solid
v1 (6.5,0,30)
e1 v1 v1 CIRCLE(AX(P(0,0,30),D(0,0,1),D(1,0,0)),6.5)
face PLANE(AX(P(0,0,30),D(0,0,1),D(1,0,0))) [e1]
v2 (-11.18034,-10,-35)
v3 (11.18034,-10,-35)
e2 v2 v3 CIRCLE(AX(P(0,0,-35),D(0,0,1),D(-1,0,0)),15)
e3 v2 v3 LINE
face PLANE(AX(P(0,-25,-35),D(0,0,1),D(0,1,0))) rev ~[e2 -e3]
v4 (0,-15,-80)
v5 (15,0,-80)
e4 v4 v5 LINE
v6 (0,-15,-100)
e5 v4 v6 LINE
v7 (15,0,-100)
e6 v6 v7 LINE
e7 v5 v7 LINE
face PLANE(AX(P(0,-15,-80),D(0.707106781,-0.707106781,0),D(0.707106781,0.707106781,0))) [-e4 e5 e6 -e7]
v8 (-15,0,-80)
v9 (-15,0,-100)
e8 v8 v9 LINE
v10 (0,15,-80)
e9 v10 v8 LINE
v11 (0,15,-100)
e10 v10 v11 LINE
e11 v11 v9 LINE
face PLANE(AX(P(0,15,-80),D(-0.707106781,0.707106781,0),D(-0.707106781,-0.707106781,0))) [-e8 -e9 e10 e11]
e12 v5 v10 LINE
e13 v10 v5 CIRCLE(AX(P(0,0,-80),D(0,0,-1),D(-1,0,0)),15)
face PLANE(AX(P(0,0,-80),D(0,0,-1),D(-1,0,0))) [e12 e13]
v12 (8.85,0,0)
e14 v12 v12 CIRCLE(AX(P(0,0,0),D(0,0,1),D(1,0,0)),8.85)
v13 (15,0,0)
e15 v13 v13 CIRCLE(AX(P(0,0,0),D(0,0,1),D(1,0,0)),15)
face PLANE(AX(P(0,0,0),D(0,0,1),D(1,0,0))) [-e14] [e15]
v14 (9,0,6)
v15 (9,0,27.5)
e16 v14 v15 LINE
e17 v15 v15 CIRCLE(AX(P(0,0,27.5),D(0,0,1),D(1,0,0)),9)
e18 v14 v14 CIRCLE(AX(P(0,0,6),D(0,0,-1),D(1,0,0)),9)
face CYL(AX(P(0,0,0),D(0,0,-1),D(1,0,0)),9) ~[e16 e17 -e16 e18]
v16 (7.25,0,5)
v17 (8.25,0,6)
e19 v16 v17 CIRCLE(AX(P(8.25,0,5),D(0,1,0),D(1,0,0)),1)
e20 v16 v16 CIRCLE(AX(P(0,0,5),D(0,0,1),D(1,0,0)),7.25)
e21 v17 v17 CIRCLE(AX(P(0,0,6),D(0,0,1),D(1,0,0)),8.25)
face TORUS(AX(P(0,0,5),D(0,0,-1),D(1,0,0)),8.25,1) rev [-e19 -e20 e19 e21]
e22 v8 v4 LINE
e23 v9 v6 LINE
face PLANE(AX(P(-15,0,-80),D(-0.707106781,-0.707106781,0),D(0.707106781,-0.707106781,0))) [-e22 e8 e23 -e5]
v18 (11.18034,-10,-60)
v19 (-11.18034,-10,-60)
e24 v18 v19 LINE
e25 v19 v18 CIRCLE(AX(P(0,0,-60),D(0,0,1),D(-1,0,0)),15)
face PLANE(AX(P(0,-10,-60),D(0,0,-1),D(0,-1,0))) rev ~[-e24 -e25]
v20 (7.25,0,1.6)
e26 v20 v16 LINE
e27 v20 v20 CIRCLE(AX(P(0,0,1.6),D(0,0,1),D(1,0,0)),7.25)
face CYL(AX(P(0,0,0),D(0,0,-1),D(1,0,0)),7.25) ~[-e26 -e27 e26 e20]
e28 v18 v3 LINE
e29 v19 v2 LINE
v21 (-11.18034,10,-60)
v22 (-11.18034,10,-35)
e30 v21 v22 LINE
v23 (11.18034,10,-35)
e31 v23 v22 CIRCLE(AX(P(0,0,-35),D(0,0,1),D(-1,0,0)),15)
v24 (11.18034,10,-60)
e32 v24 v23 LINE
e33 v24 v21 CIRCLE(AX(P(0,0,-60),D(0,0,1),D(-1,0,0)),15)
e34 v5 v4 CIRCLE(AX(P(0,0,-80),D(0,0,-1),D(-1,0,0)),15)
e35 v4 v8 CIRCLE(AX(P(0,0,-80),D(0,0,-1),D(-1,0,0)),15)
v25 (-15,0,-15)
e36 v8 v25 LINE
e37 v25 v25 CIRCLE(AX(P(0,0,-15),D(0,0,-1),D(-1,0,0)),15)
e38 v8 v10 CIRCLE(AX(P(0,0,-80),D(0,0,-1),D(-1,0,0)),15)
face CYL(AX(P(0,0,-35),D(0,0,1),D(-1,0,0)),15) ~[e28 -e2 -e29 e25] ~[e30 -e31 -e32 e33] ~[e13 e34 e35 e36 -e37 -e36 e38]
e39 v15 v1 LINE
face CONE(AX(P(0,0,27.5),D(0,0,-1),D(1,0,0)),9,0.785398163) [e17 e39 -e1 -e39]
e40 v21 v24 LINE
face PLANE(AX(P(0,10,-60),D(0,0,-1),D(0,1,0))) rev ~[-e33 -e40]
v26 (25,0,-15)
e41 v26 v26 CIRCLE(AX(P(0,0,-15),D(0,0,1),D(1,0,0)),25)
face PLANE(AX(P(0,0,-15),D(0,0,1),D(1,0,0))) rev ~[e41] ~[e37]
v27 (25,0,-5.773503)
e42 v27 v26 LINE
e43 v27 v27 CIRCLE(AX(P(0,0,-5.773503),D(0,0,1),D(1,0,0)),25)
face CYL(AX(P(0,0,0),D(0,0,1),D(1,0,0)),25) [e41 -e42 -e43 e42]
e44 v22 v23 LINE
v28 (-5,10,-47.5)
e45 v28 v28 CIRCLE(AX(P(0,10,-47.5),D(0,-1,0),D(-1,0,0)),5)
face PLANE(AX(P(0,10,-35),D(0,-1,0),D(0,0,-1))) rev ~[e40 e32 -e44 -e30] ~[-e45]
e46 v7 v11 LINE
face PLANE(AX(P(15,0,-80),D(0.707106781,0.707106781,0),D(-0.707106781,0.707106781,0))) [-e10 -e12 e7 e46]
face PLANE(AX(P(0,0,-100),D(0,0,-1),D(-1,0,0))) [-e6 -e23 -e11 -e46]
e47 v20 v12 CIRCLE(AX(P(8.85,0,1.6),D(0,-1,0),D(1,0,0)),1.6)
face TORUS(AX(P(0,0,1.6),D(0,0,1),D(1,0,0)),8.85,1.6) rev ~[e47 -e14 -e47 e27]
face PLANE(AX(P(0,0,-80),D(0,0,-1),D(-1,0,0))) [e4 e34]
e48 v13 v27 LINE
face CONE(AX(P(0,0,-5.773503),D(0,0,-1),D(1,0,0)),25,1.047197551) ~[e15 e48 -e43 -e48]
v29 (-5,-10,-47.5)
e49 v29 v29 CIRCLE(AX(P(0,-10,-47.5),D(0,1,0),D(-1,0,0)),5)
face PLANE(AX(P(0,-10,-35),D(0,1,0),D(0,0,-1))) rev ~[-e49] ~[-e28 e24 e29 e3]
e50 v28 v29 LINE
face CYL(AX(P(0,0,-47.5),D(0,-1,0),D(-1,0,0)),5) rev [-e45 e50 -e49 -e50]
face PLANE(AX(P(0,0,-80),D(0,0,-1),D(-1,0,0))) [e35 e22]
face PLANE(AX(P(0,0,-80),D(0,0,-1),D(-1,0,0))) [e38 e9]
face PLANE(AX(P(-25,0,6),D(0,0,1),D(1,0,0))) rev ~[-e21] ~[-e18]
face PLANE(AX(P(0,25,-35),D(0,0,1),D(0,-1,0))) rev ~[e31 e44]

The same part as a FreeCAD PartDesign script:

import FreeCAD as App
import Part
import Sketcher

V = App.Vector


def edges_at(feature, points):
    """Names of the edges that pass closest to the given points."""
    edges = feature.Shape.Edges
    near = lambda p: min(range(len(edges)), key=lambda i: edges[i].distToShape(Part.Vertex(*p))[0])
    return sorted({f"Edge{near(p) + 1}" for p in points})

doc = App.newDocument("Part")
body = doc.addObject("PartDesign::Body", "Body")
body.AllowCompound = True

sketch1 = body.newObject("Sketcher::SketchObject", "Sketch")
sketch1.AttachmentSupport = (doc.getObject("XY_Plane"), [""])
sketch1.MapMode = "FlatFace"
sketch1.addGeometry(Part.Circle(V(0, 0, 0), V(0, 0, 1), 9), False)
sketch1.addConstraint([
    Sketcher.Constraint("Coincident", 0, 3, -1, 1),
    Sketcher.Constraint("Diameter", 0, 18.0),
])
pad1 = body.newObject("PartDesign::Pad", "Pad")
pad1.Profile = sketch1
pad1.Length = 30

sketch2 = body.newObject("Sketcher::SketchObject", "Sketch001")
sketch2.AttachmentSupport = (doc.getObject("XY_Plane"), [""])
sketch2.MapMode = "FlatFace"
sketch2.addGeometry(Part.Circle(V(0, 0, 0), V(0, 0, 1), 25), False)
sketch2.addConstraint([
    Sketcher.Constraint("Coincident", 0, 3, -1, 1),
    Sketcher.Constraint("Diameter", 0, 50.0),
])
pad2 = body.newObject("PartDesign::Pad", "Pad001")
pad2.Profile = sketch2
pad2.Length = 15
pad2.Reversed = True

sketch3 = body.newObject("Sketcher::SketchObject", "Sketch002")
sketch3.AttachmentSupport = (doc.getObject("XY_Plane"), [""])
sketch3.MapMode = "FlatFace"
sketch3.AttachmentOffset = App.Placement(V(0, 0, -15), App.Rotation())
sketch3.addGeometry(Part.Circle(V(0, 0, 0), V(0, 0, 1), 15), False)
sketch3.addConstraint([
    Sketcher.Constraint("Coincident", 0, 3, -1, 1),
    Sketcher.Constraint("Diameter", 0, 30.0),
])
pad3 = body.newObject("PartDesign::Pad", "Pad002")
pad3.Profile = sketch3
pad3.Length = 20
pad3.Reversed = True

sketch4 = body.newObject("Sketcher::SketchObject", "Sketch003")
sketch4.AttachmentSupport = (doc.getObject("XY_Plane"), [""])
sketch4.MapMode = "FlatFace"
sketch4.AttachmentOffset = App.Placement(V(0, 0, -35), App.Rotation())
sketch4.addGeometry(Part.Circle(V(0, 0, 0), V(0, 0, 1), 15), False)
sketch4.addConstraint([
    Sketcher.Constraint("Coincident", 0, 3, -1, 1),
    Sketcher.Constraint("Diameter", 0, 30.0),
])
pad4 = body.newObject("PartDesign::Pad", "Pad003")
pad4.Profile = sketch4
pad4.Length = 25
pad4.Reversed = True

sketch5 = body.newObject("Sketcher::SketchObject", "Sketch004")
sketch5.AttachmentSupport = (doc.getObject("XY_Plane"), [""])
sketch5.MapMode = "FlatFace"
sketch5.AttachmentOffset = App.Placement(V(0, 0, -60), App.Rotation())
sketch5.addGeometry(Part.Circle(V(0, 0, 0), V(0, 0, 1), 15), False)
sketch5.addConstraint([
    Sketcher.Constraint("Coincident", 0, 3, -1, 1),
    Sketcher.Constraint("Diameter", 0, 30.0),
])
pad5 = body.newObject("PartDesign::Pad", "Pad004")
pad5.Profile = sketch5
pad5.Length = 20
pad5.Reversed = True

sketch6 = body.newObject("Sketcher::SketchObject", "Sketch005")
sketch6.AttachmentSupport = (doc.getObject("XY_Plane"), [""])
sketch6.MapMode = "FlatFace"
sketch6.AttachmentOffset = App.Placement(V(0, 0, -80), App.Rotation())
sketch6.addGeometry([
    Part.LineSegment(V(0, -15, 0), V(-15, 0, 0)),
    Part.LineSegment(V(-15, 0, 0), V(0, 15, 0)),
    Part.LineSegment(V(0, 15, 0), V(15, 0, 0)),
    Part.LineSegment(V(15, 0, 0), V(0, -15, 0)),
], False)
sketch6.addConstraint([
    Sketcher.Constraint("Coincident", 0, 2, 1, 1),
    Sketcher.Constraint("Coincident", 1, 2, 2, 1),
    Sketcher.Constraint("Coincident", 2, 2, 3, 1),
    Sketcher.Constraint("Coincident", 3, 2, 0, 1),
    Sketcher.Constraint("Symmetric", 0, 2, 2, 2, -1, 1),
    Sketcher.Constraint("Symmetric", 1, 2, 3, 2, -1, 1),
    Sketcher.Constraint("PointOnObject", 0, 2, -1),
    Sketcher.Constraint("PointOnObject", 1, 2, -2),
    Sketcher.Constraint("Perpendicular", 0, 1),
    Sketcher.Constraint("DistanceX", 0, 2, -1, 1, 15.0),
])
pad6 = body.newObject("PartDesign::Pad", "Pad005")
pad6.Profile = sketch6
pad6.Length = 20
pad6.Reversed = True

sketch7 = body.newObject("Sketcher::SketchObject", "Sketch006")
sketch7.AttachmentSupport = (doc.getObject("YZ_Plane"), [""])
sketch7.MapMode = "FlatFace"
sketch7.addGeometry([
    Part.LineSegment(V(25, -35, 0), V(10, -35, 0)),
    Part.LineSegment(V(10, -35, 0), V(10, -60, 0)),
    Part.LineSegment(V(10, -60, 0), V(25, -60, 0)),
    Part.LineSegment(V(25, -60, 0), V(25, -35, 0)),
], False)
sketch7.addConstraint([
    Sketcher.Constraint("Coincident", 0, 2, 1, 1),
    Sketcher.Constraint("Coincident", 1, 2, 2, 1),
    Sketcher.Constraint("Coincident", 2, 2, 3, 1),
    Sketcher.Constraint("Coincident", 3, 2, 0, 1),
    Sketcher.Constraint("Horizontal", 0),
    Sketcher.Constraint("Vertical", 1),
    Sketcher.Constraint("Horizontal", 2),
    Sketcher.Constraint("Vertical", 3),
    Sketcher.Constraint("DistanceX", 0, 2, 0, 1, 15.0),
    Sketcher.Constraint("DistanceY", 1, 2, 1, 1, 25.0),
    Sketcher.Constraint("DistanceX", -1, 1, 0, 2, 10.0),
    Sketcher.Constraint("DistanceY", 0, 2, -1, 1, 35.0),
])
pocket1 = body.newObject("PartDesign::Pocket", "Pocket")
pocket1.Profile = sketch7
pocket1.Length = 40
pocket1.Midplane = True

sketch8 = body.newObject("Sketcher::SketchObject", "Sketch007")
sketch8.AttachmentSupport = (doc.getObject("YZ_Plane"), [""])
sketch8.MapMode = "FlatFace"
sketch8.addGeometry([
    Part.LineSegment(V(-10, -60, 0), V(-10, -35, 0)),
    Part.LineSegment(V(-10, -35, 0), V(-25, -35, 0)),
    Part.LineSegment(V(-25, -35, 0), V(-25, -60, 0)),
    Part.LineSegment(V(-25, -60, 0), V(-10, -60, 0)),
], False)
sketch8.addConstraint([
    Sketcher.Constraint("Coincident", 0, 2, 1, 1),
    Sketcher.Constraint("Coincident", 1, 2, 2, 1),
    Sketcher.Constraint("Coincident", 2, 2, 3, 1),
    Sketcher.Constraint("Coincident", 3, 2, 0, 1),
    Sketcher.Constraint("Vertical", 0),
    Sketcher.Constraint("Horizontal", 1),
    Sketcher.Constraint("Vertical", 2),
    Sketcher.Constraint("Horizontal", 3),
    Sketcher.Constraint("DistanceX", 1, 2, 1, 1, 15.0),
    Sketcher.Constraint("DistanceY", 0, 1, 0, 2, 25.0),
    Sketcher.Constraint("DistanceX", 0, 2, -1, 1, 10.0),
    Sketcher.Constraint("DistanceY", 0, 2, -1, 1, 35.0),
])
pocket2 = body.newObject("PartDesign::Pocket", "Pocket001")
pocket2.Profile = sketch8
pocket2.Length = 40
pocket2.Midplane = True

sketch9 = body.newObject("Sketcher::SketchObject", "Sketch008")
sketch9.AttachmentSupport = (doc.getObject("XZ_Plane"), [""])
sketch9.MapMode = "FlatFace"
sketch9.addGeometry(Part.Circle(V(0, -47.5, 0), V(0, 0, 1), 5), False)
sketch9.addConstraint([
    Sketcher.Constraint("PointOnObject", 0, 3, -2),
    Sketcher.Constraint("Diameter", 0, 10.0),
    Sketcher.Constraint("DistanceY", 0, 3, -1, 1, 47.5),
])
pocket3 = body.newObject("PartDesign::Pocket", "Pocket002")
pocket3.Profile = sketch9
pocket3.Length = 40
pocket3.Midplane = True
doc.recompute()

chamfer = body.newObject("PartDesign::Chamfer", "Chamfer")
chamfer.Base = (pocket3, edges_at(pocket3, [(-9, 0, 30)]))
chamfer.Size = 2.5
doc.recompute()

chamfer2 = body.newObject("PartDesign::Chamfer", "Chamfer001")
chamfer2.Base = (chamfer, edges_at(chamfer, [(-25, 0, 0)]))
chamfer2.ChamferType = "Distance and Angle"
chamfer2.Size = 10
chamfer2.Angle = 30

sketch10 = body.newObject("Sketcher::SketchObject", "Sketch009")
sketch10.AttachmentSupport = (doc.getObject("XZ_Plane"), [""])
sketch10.MapMode = "FlatFace"
sketch10.addGeometry([
    Part.LineSegment(V(25.3406, 0, 0), V(-25, 0, 0)),
    Part.LineSegment(V(-25, 0, 0), V(-25, 6, 0)),
    Part.LineSegment(V(-25, 6, 0), V(25.3406, 6, 0)),
    Part.LineSegment(V(25.3406, 6, 0), V(25.3406, 0, 0)),
], False)
sketch10.addConstraint([
    Sketcher.Constraint("Coincident", 0, 2, 1, 1),
    Sketcher.Constraint("Coincident", 1, 2, 2, 1),
    Sketcher.Constraint("Coincident", 2, 2, 3, 1),
    Sketcher.Constraint("Coincident", 3, 2, 0, 1),
    Sketcher.Constraint("Horizontal", 0),
    Sketcher.Constraint("Vertical", 1),
    Sketcher.Constraint("Horizontal", 2),
    Sketcher.Constraint("Vertical", 3),
    Sketcher.Constraint("PointOnObject", 0, 2, -1),
    Sketcher.Constraint("DistanceY", 1, 1, 1, 2, 6.0),
    Sketcher.Constraint("DistanceX", 0, 2, -1, 1, 25.0),
    Sketcher.Constraint("DistanceX", 0, 2, 0, 1, 50.3406),
])
pocket4 = body.newObject("PartDesign::Pocket", "Pocket003")
pocket4.Profile = sketch10
pocket4.Length = 40
pocket4.Midplane = True

sketch11 = body.newObject("Sketcher::SketchObject", "Sketch010")
sketch11.AttachmentSupport = (doc.getObject("XY_Plane"), [""])
sketch11.MapMode = "FlatFace"
sketch11.addGeometry(Part.Circle(V(0, 0, 0), V(0, 0, 1), 7.25), False)
sketch11.addConstraint([
    Sketcher.Constraint("Coincident", 0, 3, -1, 1),
    Sketcher.Constraint("Diameter", 0, 14.5),
])
pad7 = body.newObject("PartDesign::Pad", "Pad006")
pad7.Profile = sketch11
pad7.Length = 6
doc.recompute()

fillet = body.newObject("PartDesign::Fillet", "Fillet")
fillet.Base = (pad7, edges_at(pad7, [(-7.25, 0, 6)]))
fillet.Radius = 1
doc.recompute()

fillet2 = body.newObject("PartDesign::Fillet", "Fillet001")
fillet2.Base = (fillet, edges_at(fillet, [(-7.25, 0, 0)]))
fillet2.Radius = 1.6

doc.recompute()
